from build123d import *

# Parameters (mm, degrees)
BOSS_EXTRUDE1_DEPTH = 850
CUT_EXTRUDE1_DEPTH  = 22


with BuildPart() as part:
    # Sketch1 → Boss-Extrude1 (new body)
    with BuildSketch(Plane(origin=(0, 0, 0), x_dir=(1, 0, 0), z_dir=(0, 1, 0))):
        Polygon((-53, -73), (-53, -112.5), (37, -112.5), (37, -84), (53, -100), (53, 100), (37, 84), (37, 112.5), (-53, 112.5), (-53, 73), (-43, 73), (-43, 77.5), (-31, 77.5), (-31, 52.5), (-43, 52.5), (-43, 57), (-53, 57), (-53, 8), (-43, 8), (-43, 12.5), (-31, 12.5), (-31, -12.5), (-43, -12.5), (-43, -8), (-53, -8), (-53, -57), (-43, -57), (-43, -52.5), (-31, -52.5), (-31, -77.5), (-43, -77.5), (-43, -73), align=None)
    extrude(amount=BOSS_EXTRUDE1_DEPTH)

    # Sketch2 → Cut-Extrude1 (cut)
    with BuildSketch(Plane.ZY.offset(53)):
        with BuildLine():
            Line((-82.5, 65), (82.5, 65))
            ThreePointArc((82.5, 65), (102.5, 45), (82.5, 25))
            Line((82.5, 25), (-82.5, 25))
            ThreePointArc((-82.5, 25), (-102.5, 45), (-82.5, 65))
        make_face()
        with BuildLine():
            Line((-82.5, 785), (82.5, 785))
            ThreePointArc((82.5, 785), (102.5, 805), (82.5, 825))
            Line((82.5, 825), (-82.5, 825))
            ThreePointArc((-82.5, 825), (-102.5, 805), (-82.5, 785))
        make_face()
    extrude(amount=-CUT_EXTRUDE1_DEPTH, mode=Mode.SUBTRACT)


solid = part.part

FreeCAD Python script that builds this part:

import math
import FreeCAD as App
import Part
import Sketcher

V = App.Vector


def add_polygon(sketch, points):
    """Adds a closed chain of lines whose ends are joined by coincident constraints."""
    first, n = sketch.GeometryCount, len(points)
    for a, b in zip(points, points[1:] + points[:1]):
        sketch.addGeometry(Part.LineSegment(App.Vector(*a, 0), App.Vector(*b, 0)), False)
    for i in range(n):
        sketch.addConstraint(Sketcher.Constraint("Coincident", first + i, 2, first + (i + 1) % n, 1))

doc = App.newDocument("Part")
body = doc.addObject("PartDesign::Body", "Body")

# Sketch on XZ plane
sketch1 = body.newObject("Sketcher::SketchObject", "Sketch")
sketch1.AttachmentSupport = (doc.getObject("XZ_Plane"), [""])
sketch1.MapMode = "FlatFace"
add_polygon(sketch1, [(-53, 73), (-53, 112.5), (37, 112.5), (37, 84), (53, 100), (53, -100), (37, -84), (37, -112.5), (-53, -112.5), (-53, -73), (-43, -73), (-43, -77.5), (-31, -77.5), (-31, -52.5), (-43, -52.5), (-43, -57), (-53, -57), (-53, -8), (-43, -8), (-43, -12.5), (-31, -12.5), (-31, 12.5), (-43, 12.5), (-43, 8), (-53, 8), (-53, 57), (-43, 57), (-43, 52.5), (-31, 52.5), (-31, 77.5), (-43, 77.5), (-43, 73)])  # lines 0-31
sketch1.addConstraint([
    Sketcher.Constraint("Vertical", 0),
    Sketcher.Constraint("Horizontal", 1),
    Sketcher.Constraint("Vertical", 2),
    Sketcher.Constraint("Vertical", 4),
    Sketcher.Constraint("Vertical", 6),
    Sketcher.Constraint("Horizontal", 7),
    Sketcher.Constraint("Vertical", 8),
    Sketcher.Constraint("Horizontal", 9),
    Sketcher.Constraint("Vertical", 10),
    Sketcher.Constraint("Horizontal", 11),
    Sketcher.Constraint("Vertical", 12),
    Sketcher.Constraint("Horizontal", 13),
    Sketcher.Constraint("Vertical", 14),
    Sketcher.Constraint("Horizontal", 15),
    Sketcher.Constraint("Vertical", 16),
    Sketcher.Constraint("Horizontal", 17),
    Sketcher.Constraint("Vertical", 18),
    Sketcher.Constraint("Horizontal", 19),
    Sketcher.Constraint("Vertical", 20),
    Sketcher.Constraint("Horizontal", 21),
    Sketcher.Constraint("Vertical", 22),
    Sketcher.Constraint("Horizontal", 23),
    Sketcher.Constraint("Vertical", 24),
    Sketcher.Constraint("Horizontal", 25),
    Sketcher.Constraint("Vertical", 26),
    Sketcher.Constraint("Horizontal", 27),
    Sketcher.Constraint("Vertical", 28),
    Sketcher.Constraint("Horizontal", 29),
    Sketcher.Constraint("Vertical", 30),
    Sketcher.Constraint("Horizontal", 31),
    Sketcher.Constraint("Symmetric", 2, 2, 5, 2, -1),
    Sketcher.Constraint("Symmetric", 0, 2, 7, 2, -1),
    Sketcher.Constraint("Symmetric", 18, 2, 21, 2, -1),
    Sketcher.Constraint("Symmetric", 16, 2, 23, 2, -1),
    Sketcher.Constraint("Symmetric", 14, 2, 25, 2, -1),
    Sketcher.Constraint("Symmetric", 12, 2, 27, 2, -1),
    Sketcher.Constraint("Symmetric", 10, 2, 29, 2, -1),
    Sketcher.Constraint("Perpendicular", 3, 5),
    Sketcher.Constraint("Vertical", 10, 2, 13, 2),
    Sketcher.Constraint("Vertical", 8, 2, 15, 2),
    Sketcher.Constraint("Vertical", 14, 2, 17, 2),
    Sketcher.Constraint("Vertical", 12, 2, 19, 2),
    Sketcher.Constraint("Equal", 0, 8),
    Sketcher.Constraint("Equal", 10, 14),
    Sketcher.Constraint("Equal", 14, 18),
    Sketcher.Constraint("Equal", 12, 20),
    Sketcher.Constraint("Equal", 3, 5),
    Sketcher.Constraint("DistanceX", 1, 1, 1, 2, 90.0),
    Sketcher.Constraint("DistanceX", 9, 1, 9, 2, 10.0),
    Sketcher.Constraint("DistanceX", 11, 1, 11, 2, 12.0),
    Sketcher.Constraint("DistanceY", 4, 2, 4, 1, 200.0),
    Sketcher.Constraint("DistanceY", 12, 1, 12, 2, 25.0),
    Sketcher.Constraint("DistanceY", 16, 1, 16, 2, 49.0),
    Sketcher.Constraint("DistanceY", 0, 1, 0, 2, 39.5),
    Sketcher.Constraint("DistanceY", 2, 2, 2, 1, 28.5),
    Sketcher.Constraint("DistanceY", 10, 2, 10, 1, 4.5),
    Sketcher.Constraint("DistanceX", 0, 2, -1, 1, 53.0),
])
pad1 = body.newObject("PartDesign::Pad", "Pad")
pad1.Profile = sketch1
pad1.Length = 850
pad1.Reversed = True

# Sketch on YZ plane
sketch2 = body.newObject("Sketcher::SketchObject", "Sketch001")
sketch2.AttachmentSupport = (doc.getObject("YZ_Plane"), [""])
sketch2.MapMode = "FlatFace"
sketch2.AttachmentOffset = App.Placement(V(0, 0, -53), App.Rotation())
sketch2.addGeometry([
    Part.LineSegment(V(65, 82, 0), V(65, -82, 0)),  # 0
    Part.ArcOfCircle(Part.Circle(V(45, -82, 0), V(0, 0, 1), 20), math.radians(180), math.radians(360)),  # 1
    Part.LineSegment(V(25, -82, 0), V(25, 82, 0)),  # 2
    Part.ArcOfCircle(Part.Circle(V(45, 82, 0), V(0, 0, 1), 20), math.radians(0), math.radians(180)),  # 3
    Part.LineSegment(V(785, -82, 0), V(785, 82, 0)),  # 4
    Part.ArcOfCircle(Part.Circle(V(805, 82, 0), V(0, 0, 1), 20), math.radians(0), math.radians(180)),  # 5
    Part.LineSegment(V(825, 82, 0), V(825, -82, 0)),  # 6
    Part.ArcOfCircle(Part.Circle(V(805, -82, 0), V(0, 0, 1), 20), math.radians(180), math.radians(360)),  # 7
], False)
sketch2.addConstraint([
    Sketcher.Constraint("Tangent", 0, 2, 1, 2),
    Sketcher.Constraint("Tangent", 1, 1, 2, 1),
    Sketcher.Constraint("Tangent", 2, 2, 3, 2),
    Sketcher.Constraint("Tangent", 3, 1, 0, 1),
    Sketcher.Constraint("Tangent", 4, 2, 5, 2),
    Sketcher.Constraint("Tangent", 5, 1, 6, 1),
    Sketcher.Constraint("Tangent", 6, 2, 7, 2),
    Sketcher.Constraint("Tangent", 7, 1, 4, 1),
    Sketcher.Constraint("Vertical", 0),
    Sketcher.Constraint("Vertical", 2),
    Sketcher.Constraint("Vertical", 4),
    Sketcher.Constraint("Vertical", 6),
    Sketcher.Constraint("Equal", 3, 5),
    Sketcher.Constraint("Horizontal", 3, 3, 5, 3),
    Sketcher.Constraint("Horizontal", 1, 3, 7, 3),
    Sketcher.Constraint("Radius", 1, 20.0),
    Sketcher.Constraint("DistanceY", 0, 2, 0, 1, 165.0),
    Sketcher.Constraint("DistanceX", -1, 1, 1, 3, 45.0),
    Sketcher.Constraint("DistanceX", -1, 1, 5, 3, 805.0),
    Sketcher.Constraint("DistanceY", 1, 3, -1, 1, 82.5),
])
pocket1 = body.newObject("PartDesign::Pocket", "Pocket")
pocket1.Profile = sketch2
pocket1.Length = 22
pocket1.Reversed = True

doc.recompute()
